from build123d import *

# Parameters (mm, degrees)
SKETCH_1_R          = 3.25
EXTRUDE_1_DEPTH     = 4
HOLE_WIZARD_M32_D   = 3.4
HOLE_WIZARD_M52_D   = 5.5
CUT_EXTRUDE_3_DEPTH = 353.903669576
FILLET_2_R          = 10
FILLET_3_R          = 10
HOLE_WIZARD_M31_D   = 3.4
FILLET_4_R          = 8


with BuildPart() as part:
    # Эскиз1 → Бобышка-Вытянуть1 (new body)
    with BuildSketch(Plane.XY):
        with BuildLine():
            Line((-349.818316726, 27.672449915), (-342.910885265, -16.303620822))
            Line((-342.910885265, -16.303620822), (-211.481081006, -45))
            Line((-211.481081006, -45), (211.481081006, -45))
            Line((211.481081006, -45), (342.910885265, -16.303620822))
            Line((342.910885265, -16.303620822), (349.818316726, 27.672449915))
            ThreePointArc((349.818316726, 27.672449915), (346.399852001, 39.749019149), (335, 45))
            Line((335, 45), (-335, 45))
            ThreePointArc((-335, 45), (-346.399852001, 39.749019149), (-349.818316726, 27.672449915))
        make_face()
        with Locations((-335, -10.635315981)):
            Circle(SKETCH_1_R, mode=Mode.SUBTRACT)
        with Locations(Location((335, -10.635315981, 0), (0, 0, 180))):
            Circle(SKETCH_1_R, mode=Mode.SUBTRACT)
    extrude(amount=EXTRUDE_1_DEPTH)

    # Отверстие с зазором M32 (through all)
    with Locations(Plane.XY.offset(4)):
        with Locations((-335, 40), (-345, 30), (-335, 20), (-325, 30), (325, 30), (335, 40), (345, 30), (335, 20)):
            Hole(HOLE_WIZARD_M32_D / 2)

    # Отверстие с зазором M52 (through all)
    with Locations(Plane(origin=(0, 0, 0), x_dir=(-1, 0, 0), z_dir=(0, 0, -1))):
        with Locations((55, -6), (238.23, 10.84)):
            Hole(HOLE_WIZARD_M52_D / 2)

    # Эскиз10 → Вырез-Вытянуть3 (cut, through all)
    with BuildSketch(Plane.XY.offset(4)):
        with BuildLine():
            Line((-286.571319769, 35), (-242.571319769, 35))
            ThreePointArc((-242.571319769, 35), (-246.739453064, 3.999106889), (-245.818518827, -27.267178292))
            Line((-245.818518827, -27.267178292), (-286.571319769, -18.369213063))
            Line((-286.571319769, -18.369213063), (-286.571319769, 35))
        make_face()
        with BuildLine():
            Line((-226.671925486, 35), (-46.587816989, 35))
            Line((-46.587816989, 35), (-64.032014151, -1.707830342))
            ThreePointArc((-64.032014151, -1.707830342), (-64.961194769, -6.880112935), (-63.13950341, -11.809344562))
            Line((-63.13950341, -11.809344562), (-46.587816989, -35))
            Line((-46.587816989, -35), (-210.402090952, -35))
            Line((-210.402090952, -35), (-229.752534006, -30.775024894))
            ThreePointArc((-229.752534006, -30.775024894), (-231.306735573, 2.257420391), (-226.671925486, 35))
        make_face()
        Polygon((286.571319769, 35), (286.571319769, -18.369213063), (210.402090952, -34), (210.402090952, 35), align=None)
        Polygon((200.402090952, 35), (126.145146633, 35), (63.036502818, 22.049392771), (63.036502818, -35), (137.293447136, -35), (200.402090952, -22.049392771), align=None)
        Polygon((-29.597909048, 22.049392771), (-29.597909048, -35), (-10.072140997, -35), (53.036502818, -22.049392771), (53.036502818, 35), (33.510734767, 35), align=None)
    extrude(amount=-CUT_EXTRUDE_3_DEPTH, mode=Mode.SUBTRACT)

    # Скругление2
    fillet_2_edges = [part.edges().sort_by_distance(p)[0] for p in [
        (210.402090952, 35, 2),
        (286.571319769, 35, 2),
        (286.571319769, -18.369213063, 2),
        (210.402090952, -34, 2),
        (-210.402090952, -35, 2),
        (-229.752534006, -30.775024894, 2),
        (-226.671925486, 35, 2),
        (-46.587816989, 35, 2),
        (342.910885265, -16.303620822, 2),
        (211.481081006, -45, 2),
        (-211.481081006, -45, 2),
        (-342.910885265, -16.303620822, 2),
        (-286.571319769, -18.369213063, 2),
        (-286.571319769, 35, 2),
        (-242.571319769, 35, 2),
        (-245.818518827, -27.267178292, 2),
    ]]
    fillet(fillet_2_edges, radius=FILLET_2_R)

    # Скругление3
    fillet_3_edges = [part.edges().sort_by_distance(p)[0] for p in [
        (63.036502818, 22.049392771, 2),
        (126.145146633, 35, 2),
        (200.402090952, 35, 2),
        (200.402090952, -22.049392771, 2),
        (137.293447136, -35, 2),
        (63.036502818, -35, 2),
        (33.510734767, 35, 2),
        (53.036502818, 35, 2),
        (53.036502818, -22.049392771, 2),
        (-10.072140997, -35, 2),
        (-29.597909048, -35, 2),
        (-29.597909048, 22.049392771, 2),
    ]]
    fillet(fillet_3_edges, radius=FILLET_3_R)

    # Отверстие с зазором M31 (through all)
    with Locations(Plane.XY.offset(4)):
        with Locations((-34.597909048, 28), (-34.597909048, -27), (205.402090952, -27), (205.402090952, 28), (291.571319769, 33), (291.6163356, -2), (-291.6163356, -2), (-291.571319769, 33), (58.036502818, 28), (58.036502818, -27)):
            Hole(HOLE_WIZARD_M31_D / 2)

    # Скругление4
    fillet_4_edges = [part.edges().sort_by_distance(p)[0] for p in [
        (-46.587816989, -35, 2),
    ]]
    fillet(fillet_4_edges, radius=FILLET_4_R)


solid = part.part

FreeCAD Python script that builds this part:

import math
import FreeCAD as App
import Part
import Sketcher
from FreeCAD import Vector


def edges_at(feature, points):
    """Names of the edges that pass closest to the given points."""
    edges = feature.Shape.Edges
    near = lambda p: min(range(len(edges)), key=lambda i: edges[i].distToShape(Part.Vertex(*p))[0])
    return sorted({f"Edge{near(p) + 1}" for p in points})


def add_polygon(sketch, points):
    """Adds a closed chain of lines whose ends are joined by coincident constraints."""
    first, n = sketch.GeometryCount, len(points)
    for a, b in zip(points, points[1:] + points[:1]):
        sketch.addGeometry(Part.LineSegment(App.Vector(*a, 0), App.Vector(*b, 0)), False)
    for i in range(n):
        sketch.addConstraint(Sketcher.Constraint("Coincident", first + i, 2, first + (i + 1) % n, 1))

doc = App.newDocument("Part")
body = doc.addObject("PartDesign::Body", "Body")

sketch1 = body.newObject("Sketcher::SketchObject", "Sketch")
sketch1.AttachmentSupport = (doc.getObject("XY_Plane"), [""])
sketch1.MapMode = "FlatFace"
sketch1.addGeometry([
    Part.LineSegment(Vector(-349.8, 27.7, 0), Vector(-342.9, -16.3, 0)),
    Part.LineSegment(Vector(-342.9, -16.3, 0), Vector(-211.5, -45, 0)),
    Part.LineSegment(Vector(-211.5, -45, 0), Vector(211.5, -45, 0)),
    Part.LineSegment(Vector(211.5, -45, 0), Vector(342.9, -16.3, 0)),
    Part.LineSegment(Vector(342.9, -16.3, 0), Vector(349.8, 27.7, 0)),
    Part.ArcOfCircle(Part.Circle(Vector(335, 30, 0), Vector(0, 0, 1), 15), math.radians(-9), math.radians(90)),
    Part.LineSegment(Vector(335, 45, 0), Vector(-335, 45, 0)),
    Part.ArcOfCircle(Part.Circle(Vector(-335, 30, 0), Vector(0, 0, 1), 15), math.radians(90), math.radians(189)),
    Part.Circle(Vector(-335, -10.6, 0), Vector(0, 0, 1), 3.2),
    Part.Circle(Vector(335, -10.6, 0), Vector(0, 0, 1), 3.2),
], False)
sketch1.addConstraint([
    Sketcher.Constraint("Coincident", 0, 2, 1, 1),
    Sketcher.Constraint("Coincident", 1, 2, 2, 1),
    Sketcher.Constraint("Coincident", 2, 2, 3, 1),
    Sketcher.Constraint("Coincident", 3, 2, 4, 1),
    Sketcher.Constraint("Tangent", 4, 2, 5, 1),
    Sketcher.Constraint("Tangent", 5, 2, 6, 1),
    Sketcher.Constraint("Tangent", 6, 2, 7, 1),
    Sketcher.Constraint("Tangent", 7, 2, 0, 1),
    Sketcher.Constraint("Horizontal", 2),
    Sketcher.Constraint("Horizontal", 6),
    Sketcher.Constraint("Equal", 5, 7),
    Sketcher.Constraint("Equal", 8, 9),
    Sketcher.Constraint("Symmetric", 8, 3, 9, 3, -2),
    Sketcher.Constraint("Symmetric", 0, 2, 3, 2, -2),
    Sketcher.Constraint("Horizontal", 4, 2, 7, 2),
    Sketcher.Constraint("Vertical", 7, 3, 8, 3),
    Sketcher.Constraint("Equal", 1, 3),
    Sketcher.Constraint("Radius", 5, 15.0),
    Sketcher.Constraint("Diameter", 8, 6.5),
    Sketcher.Constraint("DistanceX", 6, 2, 6, 1, 670.0),
    Sketcher.Constraint("DistanceY", -1, 1, 5, 3, 30.0),
    Sketcher.Constraint("DistanceY", 1, 2, -1, 1, 45.0),
    Sketcher.Constraint("Distance", 0, 44.515249),
    Sketcher.Constraint("DistanceX", 2, 1, 2, 2, 422.962162),
    Sketcher.Constraint("DistanceY", 0, 2, -1, 1, 16.303621),
    Sketcher.Constraint("DistanceY", 8, 3, -1, 1, 10.635316),
])
pad1 = body.newObject("PartDesign::Pad", "Pad")
pad1.Profile = sketch1
pad1.Length = 4

sketch2 = body.newObject("Sketcher::SketchObject", "Sketch001")
sketch2.AttachmentSupport = (doc.getObject("XY_Plane"), [""])
sketch2.MapMode = "FlatFace"
sketch2.AttachmentOffset = App.Placement(Vector(0, 0, 4), App.Rotation())
sketch2.addGeometry([
    Part.Circle(Vector(-335, 40, 0), Vector(0, 0, 1), 1.7),
    Part.Circle(Vector(-345, 30, 0), Vector(0, 0, 1), 1.7),
    Part.Circle(Vector(-335, 20, 0), Vector(0, 0, 1), 1.7),
    Part.Circle(Vector(-325, 30, 0), Vector(0, 0, 1), 1.7),
    Part.Circle(Vector(325, 30, 0), Vector(0, 0, 1), 1.7),
    Part.Circle(Vector(335, 40, 0), Vector(0, 0, 1), 1.7),
    Part.Circle(Vector(345, 30, 0), Vector(0, 0, 1), 1.7),
    Part.Circle(Vector(335, 20, 0), Vector(0, 0, 1), 1.7),
], False)
sketch2.addConstraint([
    Sketcher.Constraint("Equal", 0, 1),
    Sketcher.Constraint("Equal", 1, 2),
    Sketcher.Constraint("Equal", 2, 3),
    Sketcher.Constraint("Equal", 3, 4),
    Sketcher.Constraint("Equal", 4, 5),
    Sketcher.Constraint("Equal", 5, 6),
    Sketcher.Constraint("Equal", 6, 7),
    Sketcher.Constraint("Symmetric", 3, 3, 4, 3, -2),
    Sketcher.Constraint("Symmetric", 0, 3, 5, 3, -2),
    Sketcher.Constraint("Symmetric", 1, 3, 6, 3, -2),
    Sketcher.Constraint("Symmetric", 2, 3, 7, 3, -2),
    Sketcher.Constraint("Horizontal", 1, 3, 3, 3),
    Sketcher.Constraint("Vertical", 0, 3, 2, 3),
    Sketcher.Constraint("Diameter", 0, 3.4),
    Sketcher.Constraint("DistanceX", 0, 3, -1, 1, 335.0),
    Sketcher.Constraint("DistanceY", -1, 1, 0, 3, 40.0),
    Sketcher.Constraint("DistanceX", 1, 3, -1, 1, 345.0),
    Sketcher.Constraint("DistanceY", -1, 1, 1, 3, 30.0),
    Sketcher.Constraint("DistanceY", -1, 1, 2, 3, 20.0),
    Sketcher.Constraint("DistanceX", 3, 3, -1, 1, 325.0),
])
doc.recompute()
hole = body.newObject("PartDesign::Hole", "Hole")
hole.Profile = sketch2
hole.ThreadType = "None"
hole.Diameter = 3.4
hole.DepthType = "ThroughAll"

sketch3 = body.newObject("Sketcher::SketchObject", "Sketch002")
sketch3.AttachmentSupport = (doc.getObject("XY_Plane"), [""])
sketch3.MapMode = "FlatFace"
sketch3.addGeometry([
    Part.Circle(Vector(-55, -6, 0), Vector(0, 0, 1), 2.8),
    Part.Circle(Vector(-238.2, 10.8, 0), Vector(0, 0, 1), 2.8),
], False)
sketch3.addConstraint([
    Sketcher.Constraint("Equal", 0, 1),
    Sketcher.Constraint("Diameter", 0, 5.5),
    Sketcher.Constraint("DistanceX", 0, 3, -1, 1, 55.0),
    Sketcher.Constraint("DistanceY", 0, 3, -1, 1, 6.0),
    Sketcher.Constraint("DistanceX", 1, 3, -1, 1, 238.23),
    Sketcher.Constraint("DistanceY", -1, 1, 1, 3, 10.84),
])
doc.recompute()
hole2 = body.newObject("PartDesign::Hole", "Hole001")
hole2.Profile = sketch3
hole2.ThreadType = "None"
hole2.Diameter = 5.5
hole2.DepthType = "ThroughAll"
hole2.Reversed = True

sketch4 = body.newObject("Sketcher::SketchObject", "Sketch003")
sketch4.AttachmentSupport = (doc.getObject("XY_Plane"), [""])
sketch4.MapMode = "FlatFace"
sketch4.AttachmentOffset = App.Placement(Vector(0, 0, 4), App.Rotation())
sketch4.addGeometry(Part.LineSegment(Vector(-243, 35, 0), Vector(-287, 35, 0)), False)
sketch4.addGeometry(Part.LineSegment(Vector(-287, 35, 0), Vector(-287, -18, 0)), False)
sketch4.addGeometry(Part.LineSegment(Vector(-287, -18, 0), Vector(-246, -27, 0)), False)
sketch4.addGeometry(Part.ArcOfCircle(Part.Circle(Vector(-55, -6, 0), Vector(0, 0, 1), 192), math.radians(167.67), math.radians(186.36)), False)
sketch4.addGeometry(Part.LineSegment(Vector(-47, 35, 0), Vector(-227, 35, 0)), False)
sketch4.addGeometry(Part.ArcOfCircle(Part.Circle(Vector(-55, -6, 0), Vector(0, 0, 1), 177), math.radians(167), math.radians(188)), False)
sketch4.addGeometry(Part.LineSegment(Vector(-230, -31, 0), Vector(-210, -35, 0)), False)
sketch4.addGeometry(Part.LineSegment(Vector(-210, -35, 0), Vector(-47, -35, 0)), False)
sketch4.addGeometry(Part.LineSegment(Vector(-47, -35, 0), Vector(-63, -12, 0)), False)
sketch4.addGeometry(Part.ArcOfCircle(Part.Circle(Vector(-55, -6, 0), Vector(0, 0, 1), 10), math.radians(155), math.radians(216)), False)
sketch4.addGeometry(Part.LineSegment(Vector(-64, -2, 0), Vector(-47, 35, 0)), False)
add_polygon(sketch4, [(287, -18), (287, 35), (210, 35), (210, -34)])
add_polygon(sketch4, [(200, 35), (126, 35), (63, 22), (63, -35), (137, -35), (200, -22)])
add_polygon(sketch4, [(-30, 22), (-30, -35), (-10, -35), (53, -22), (53, 35), (34, 35)])
sketch4.addConstraint([
    Sketcher.Constraint("Coincident", 0, 2, 1, 1),
    Sketcher.Constraint("Coincident", 1, 2, 2, 1),
    Sketcher.Constraint("Coincident", 2, 2, 3, 2),
    Sketcher.Constraint("Coincident", 3, 1, 0, 1),
    Sketcher.Constraint("Coincident", 4, 2, 5, 1),
    Sketcher.Constraint("Coincident", 5, 2, 6, 1),
    Sketcher.Constraint("Coincident", 6, 2, 7, 1),
    Sketcher.Constraint("Coincident", 7, 2, 8, 1),
    Sketcher.Constraint("Tangent", 8, 2, 9, 2),
    Sketcher.Constraint("Tangent", 9, 1, 10, 1),
    Sketcher.Constraint("Coincident", 10, 2, 4, 1),
    Sketcher.Constraint("Horizontal", 0),
    Sketcher.Constraint("Vertical", 1),
    Sketcher.Constraint("Horizontal", 4),
    Sketcher.Constraint("Horizontal", 7),
    Sketcher.Constraint("Vertical", 11),
    Sketcher.Constraint("Horizontal", 12),
    Sketcher.Constraint("Vertical", 13),
    Sketcher.Constraint("Horizontal", 15),
    Sketcher.Constraint("Vertical", 17),
    Sketcher.Constraint("Horizontal", 18),
    Sketcher.Constraint("Vertical", 20),
    Sketcher.Constraint("Vertical", 21),
    Sketcher.Constraint("Horizontal", 22),
    Sketcher.Constraint("Vertical", 24),
    Sketcher.Constraint("Horizontal", 25),
    Sketcher.Constraint("Coincident", 5, 3, 3, 3),
    Sketcher.Constraint("Coincident", 9, 3, 3, 3),
    Sketcher.Constraint("Symmetric", 6, 2, 12, 2, -1, 1),
    Sketcher.Constraint("Symmetric", 0, 2, 11, 2, -2),
    Sketcher.Constraint("Symmetric", 7, 2, 10, 2, -1),
    Sketcher.Constraint("Parallel", 2, 6),
    Sketcher.Constraint("Parallel", 14, 16),
    Sketcher.Constraint("Parallel", 16, 19),
    Sketcher.Constraint("Parallel", 19, 23),
    Sketcher.Constraint("Parallel", 23, 26),
    Sketcher.Constraint("Horizontal", 1, 2, 14, 2),
    Sketcher.Constraint("Horizontal", 12, 2, 15, 2),
    Sketcher.Constraint("Horizontal", 7, 2, 17, 2),
    Sketcher.Constraint("Horizontal", 18, 2, 21, 2),
    Sketcher.Constraint("Horizontal", 19, 2, 23, 2),
    Sketcher.Constraint("Horizontal", 20, 2, 24, 2),
    Sketcher.Constraint("Horizontal", 16, 2, 26, 2),
    Sketcher.Constraint("Equal", 15, 18),
    Sketcher.Constraint("Radius", 3, 192.0),
    Sketcher.Constraint("Radius", 9, 10.0),
    Sketcher.Constraint("Radius", 5, 176.5),
    Sketcher.Constraint("DistanceX", 0, 2, 0, 1, 44.0),
    Sketcher.Constraint("DistanceY", 13, 2, 13, 1, 69.0),
    Sketcher.Constraint("DistanceX", 3, 3, -1, 1, 55.0),
    Sketcher.Constraint("DistanceY", 3, 3, -1, 1, 6.0),
    Sketcher.Constraint("DistanceY", -1, 1, 0, 2, 35.0),
    Sketcher.Constraint("DistanceX", 19, 2, 13, 2, 10.0),
    Sketcher.Constraint("DistanceX", 23, 2, 17, 2, 10.0),
    Sketcher.Constraint("DistanceX", 4, 2, 4, 1, 180.084108),
    Sketcher.Constraint("DistanceX", 12, 2, 12, 1, 76.169229),
    Sketcher.Constraint("DistanceX", 22, 1, 22, 2, 19.525768),
    Sketcher.Constraint("DistanceX", 1, 2, 2, 2, 40.752801),
    Sketcher.Constraint("DistanceX", 15, 2, 18, 2, 11.148301),
    Sketcher.Constraint("DistanceX", 15, 2, 15, 1, 74.256944),
    Sketcher.Constraint("DistanceY", 1, 2, 1, 1, 53.369213),
])
pocket1 = body.newObject("PartDesign::Pocket", "Pocket")
pocket1.Profile = sketch4
pocket1.Type = "ThroughAll"
doc.recompute()

fillet = body.newObject("PartDesign::Fillet", "Fillet")
fillet.Base = (pocket1, edges_at(pocket1, [
    (210.402, 35, 2),
    (286.571, 35, 2),
    (286.571, -18.369, 2),
    (210.402, -34, 2),
    (-210.402, -35, 2),
    (-229.753, -30.775, 2),
    (-226.672, 35, 2),
    (-46.588, 35, 2),
    (342.911, -16.304, 2),
    (211.481, -45, 2),
    (-211.481, -45, 2),
    (-342.911, -16.304, 2),
    (-286.571, -18.369, 2),
    (-286.571, 35, 2),
    (-242.571, 35, 2),
    (-245.819, -27.267, 2),
]))
fillet.Radius = 10
doc.recompute()

fillet2 = body.newObject("PartDesign::Fillet", "Fillet001")
fillet2.Base = (fillet, edges_at(fillet, [
    (63.037, 22.049, 2),
    (126.145, 35, 2),
    (200.402, 35, 2),
    (200.402, -22.049, 2),
    (137.293, -35, 2),
    (63.037, -35, 2),
    (33.511, 35, 2),
    (53.037, 35, 2),
    (53.037, -22.049, 2),
    (-10.072, -35, 2),
    (-29.598, -35, 2),
    (-29.598, 22.049, 2),
]))
fillet2.Radius = 10

sketch5 = body.newObject("Sketcher::SketchObject", "Sketch004")
sketch5.AttachmentSupport = (doc.getObject("XY_Plane"), [""])
sketch5.MapMode = "FlatFace"
sketch5.AttachmentOffset = App.Placement(Vector(0, 0, 4), App.Rotation())
sketch5.addGeometry([
    Part.Circle(Vector(-34.6, 28, 0), Vector(0, 0, 1), 1.7),
    Part.Circle(Vector(-34.6, -27, 0), Vector(0, 0, 1), 1.7),
    Part.Circle(Vector(205.4, -27, 0), Vector(0, 0, 1), 1.7),
    Part.Circle(Vector(205.4, 28, 0), Vector(0, 0, 1), 1.7),
    Part.Circle(Vector(291.6, 33, 0), Vector(0, 0, 1), 1.7),
    Part.Circle(Vector(291.6, -2, 0), Vector(0, 0, 1), 1.7),
    Part.Circle(Vector(-291.6, -2, 0), Vector(0, 0, 1), 1.7),
    Part.Circle(Vector(-291.6, 33, 0), Vector(0, 0, 1), 1.7),
    Part.Circle(Vector(58, 28, 0), Vector(0, 0, 1), 1.7),
    Part.Circle(Vector(58, -27, 0), Vector(0, 0, 1), 1.7),
], False)
sketch5.addConstraint([
    Sketcher.Constraint("Equal", 0, 1),
    Sketcher.Constraint("Equal", 1, 2),
    Sketcher.Constraint("Equal", 2, 3),
    Sketcher.Constraint("Equal", 3, 4),
    Sketcher.Constraint("Equal", 4, 5),
    Sketcher.Constraint("Equal", 5, 6),
    Sketcher.Constraint("Equal", 6, 7),
    Sketcher.Constraint("Equal", 7, 8),
    Sketcher.Constraint("Equal", 8, 9),
    Sketcher.Constraint("Symmetric", 5, 3, 6, 3, -2),
    Sketcher.Constraint("Symmetric", 4, 3, 7, 3, -2),
    Sketcher.Constraint("Horizontal", 1, 3, 2, 3),
    Sketcher.Constraint("Horizontal", 0, 3, 3, 3),
    Sketcher.Constraint("Horizontal", 3, 3, 8, 3),
    Sketcher.Constraint("Horizontal", 2, 3, 9, 3),
    Sketcher.Constraint("Vertical", 0, 3, 1, 3),
    Sketcher.Constraint("Vertical", 2, 3, 3, 3),
    Sketcher.Constraint("Vertical", 8, 3, 9, 3),
    Sketcher.Constraint("Diameter", 0, 3.4),
    Sketcher.Constraint("DistanceY", -1, 1, 0, 3, 28.0),
    Sketcher.Constraint("DistanceY", 1, 3, -1, 1, 27.0),
    Sketcher.Constraint("DistanceY", -1, 1, 4, 3, 33.0),
    Sketcher.Constraint("DistanceY", 5, 3, -1, 1, 2.0),
    Sketcher.Constraint("DistanceX", 1, 3, 2, 3, 240.0),
    Sketcher.Constraint("DistanceX", 0, 3, -1, 1, 34.597909),
    Sketcher.Constraint("DistanceX", -1, 1, 4, 3, 291.57132),
    Sketcher.Constraint("DistanceX", 6, 3, 5, 3, 583.232671),
    Sketcher.Constraint("DistanceX", 0, 3, 8, 3, 92.634412),
])
doc.recompute()
hole3 = body.newObject("PartDesign::Hole", "Hole002")
hole3.Profile = sketch5
hole3.ThreadType = "None"
hole3.Diameter = 3.4
hole3.DepthType = "ThroughAll"
doc.recompute()

fillet3 = body.newObject("PartDesign::Fillet", "Fillet002")
fillet3.Base = (hole3, edges_at(hole3, [(-46.588, -35, 2)]))
fillet3.Radius = 8

doc.recompute()
